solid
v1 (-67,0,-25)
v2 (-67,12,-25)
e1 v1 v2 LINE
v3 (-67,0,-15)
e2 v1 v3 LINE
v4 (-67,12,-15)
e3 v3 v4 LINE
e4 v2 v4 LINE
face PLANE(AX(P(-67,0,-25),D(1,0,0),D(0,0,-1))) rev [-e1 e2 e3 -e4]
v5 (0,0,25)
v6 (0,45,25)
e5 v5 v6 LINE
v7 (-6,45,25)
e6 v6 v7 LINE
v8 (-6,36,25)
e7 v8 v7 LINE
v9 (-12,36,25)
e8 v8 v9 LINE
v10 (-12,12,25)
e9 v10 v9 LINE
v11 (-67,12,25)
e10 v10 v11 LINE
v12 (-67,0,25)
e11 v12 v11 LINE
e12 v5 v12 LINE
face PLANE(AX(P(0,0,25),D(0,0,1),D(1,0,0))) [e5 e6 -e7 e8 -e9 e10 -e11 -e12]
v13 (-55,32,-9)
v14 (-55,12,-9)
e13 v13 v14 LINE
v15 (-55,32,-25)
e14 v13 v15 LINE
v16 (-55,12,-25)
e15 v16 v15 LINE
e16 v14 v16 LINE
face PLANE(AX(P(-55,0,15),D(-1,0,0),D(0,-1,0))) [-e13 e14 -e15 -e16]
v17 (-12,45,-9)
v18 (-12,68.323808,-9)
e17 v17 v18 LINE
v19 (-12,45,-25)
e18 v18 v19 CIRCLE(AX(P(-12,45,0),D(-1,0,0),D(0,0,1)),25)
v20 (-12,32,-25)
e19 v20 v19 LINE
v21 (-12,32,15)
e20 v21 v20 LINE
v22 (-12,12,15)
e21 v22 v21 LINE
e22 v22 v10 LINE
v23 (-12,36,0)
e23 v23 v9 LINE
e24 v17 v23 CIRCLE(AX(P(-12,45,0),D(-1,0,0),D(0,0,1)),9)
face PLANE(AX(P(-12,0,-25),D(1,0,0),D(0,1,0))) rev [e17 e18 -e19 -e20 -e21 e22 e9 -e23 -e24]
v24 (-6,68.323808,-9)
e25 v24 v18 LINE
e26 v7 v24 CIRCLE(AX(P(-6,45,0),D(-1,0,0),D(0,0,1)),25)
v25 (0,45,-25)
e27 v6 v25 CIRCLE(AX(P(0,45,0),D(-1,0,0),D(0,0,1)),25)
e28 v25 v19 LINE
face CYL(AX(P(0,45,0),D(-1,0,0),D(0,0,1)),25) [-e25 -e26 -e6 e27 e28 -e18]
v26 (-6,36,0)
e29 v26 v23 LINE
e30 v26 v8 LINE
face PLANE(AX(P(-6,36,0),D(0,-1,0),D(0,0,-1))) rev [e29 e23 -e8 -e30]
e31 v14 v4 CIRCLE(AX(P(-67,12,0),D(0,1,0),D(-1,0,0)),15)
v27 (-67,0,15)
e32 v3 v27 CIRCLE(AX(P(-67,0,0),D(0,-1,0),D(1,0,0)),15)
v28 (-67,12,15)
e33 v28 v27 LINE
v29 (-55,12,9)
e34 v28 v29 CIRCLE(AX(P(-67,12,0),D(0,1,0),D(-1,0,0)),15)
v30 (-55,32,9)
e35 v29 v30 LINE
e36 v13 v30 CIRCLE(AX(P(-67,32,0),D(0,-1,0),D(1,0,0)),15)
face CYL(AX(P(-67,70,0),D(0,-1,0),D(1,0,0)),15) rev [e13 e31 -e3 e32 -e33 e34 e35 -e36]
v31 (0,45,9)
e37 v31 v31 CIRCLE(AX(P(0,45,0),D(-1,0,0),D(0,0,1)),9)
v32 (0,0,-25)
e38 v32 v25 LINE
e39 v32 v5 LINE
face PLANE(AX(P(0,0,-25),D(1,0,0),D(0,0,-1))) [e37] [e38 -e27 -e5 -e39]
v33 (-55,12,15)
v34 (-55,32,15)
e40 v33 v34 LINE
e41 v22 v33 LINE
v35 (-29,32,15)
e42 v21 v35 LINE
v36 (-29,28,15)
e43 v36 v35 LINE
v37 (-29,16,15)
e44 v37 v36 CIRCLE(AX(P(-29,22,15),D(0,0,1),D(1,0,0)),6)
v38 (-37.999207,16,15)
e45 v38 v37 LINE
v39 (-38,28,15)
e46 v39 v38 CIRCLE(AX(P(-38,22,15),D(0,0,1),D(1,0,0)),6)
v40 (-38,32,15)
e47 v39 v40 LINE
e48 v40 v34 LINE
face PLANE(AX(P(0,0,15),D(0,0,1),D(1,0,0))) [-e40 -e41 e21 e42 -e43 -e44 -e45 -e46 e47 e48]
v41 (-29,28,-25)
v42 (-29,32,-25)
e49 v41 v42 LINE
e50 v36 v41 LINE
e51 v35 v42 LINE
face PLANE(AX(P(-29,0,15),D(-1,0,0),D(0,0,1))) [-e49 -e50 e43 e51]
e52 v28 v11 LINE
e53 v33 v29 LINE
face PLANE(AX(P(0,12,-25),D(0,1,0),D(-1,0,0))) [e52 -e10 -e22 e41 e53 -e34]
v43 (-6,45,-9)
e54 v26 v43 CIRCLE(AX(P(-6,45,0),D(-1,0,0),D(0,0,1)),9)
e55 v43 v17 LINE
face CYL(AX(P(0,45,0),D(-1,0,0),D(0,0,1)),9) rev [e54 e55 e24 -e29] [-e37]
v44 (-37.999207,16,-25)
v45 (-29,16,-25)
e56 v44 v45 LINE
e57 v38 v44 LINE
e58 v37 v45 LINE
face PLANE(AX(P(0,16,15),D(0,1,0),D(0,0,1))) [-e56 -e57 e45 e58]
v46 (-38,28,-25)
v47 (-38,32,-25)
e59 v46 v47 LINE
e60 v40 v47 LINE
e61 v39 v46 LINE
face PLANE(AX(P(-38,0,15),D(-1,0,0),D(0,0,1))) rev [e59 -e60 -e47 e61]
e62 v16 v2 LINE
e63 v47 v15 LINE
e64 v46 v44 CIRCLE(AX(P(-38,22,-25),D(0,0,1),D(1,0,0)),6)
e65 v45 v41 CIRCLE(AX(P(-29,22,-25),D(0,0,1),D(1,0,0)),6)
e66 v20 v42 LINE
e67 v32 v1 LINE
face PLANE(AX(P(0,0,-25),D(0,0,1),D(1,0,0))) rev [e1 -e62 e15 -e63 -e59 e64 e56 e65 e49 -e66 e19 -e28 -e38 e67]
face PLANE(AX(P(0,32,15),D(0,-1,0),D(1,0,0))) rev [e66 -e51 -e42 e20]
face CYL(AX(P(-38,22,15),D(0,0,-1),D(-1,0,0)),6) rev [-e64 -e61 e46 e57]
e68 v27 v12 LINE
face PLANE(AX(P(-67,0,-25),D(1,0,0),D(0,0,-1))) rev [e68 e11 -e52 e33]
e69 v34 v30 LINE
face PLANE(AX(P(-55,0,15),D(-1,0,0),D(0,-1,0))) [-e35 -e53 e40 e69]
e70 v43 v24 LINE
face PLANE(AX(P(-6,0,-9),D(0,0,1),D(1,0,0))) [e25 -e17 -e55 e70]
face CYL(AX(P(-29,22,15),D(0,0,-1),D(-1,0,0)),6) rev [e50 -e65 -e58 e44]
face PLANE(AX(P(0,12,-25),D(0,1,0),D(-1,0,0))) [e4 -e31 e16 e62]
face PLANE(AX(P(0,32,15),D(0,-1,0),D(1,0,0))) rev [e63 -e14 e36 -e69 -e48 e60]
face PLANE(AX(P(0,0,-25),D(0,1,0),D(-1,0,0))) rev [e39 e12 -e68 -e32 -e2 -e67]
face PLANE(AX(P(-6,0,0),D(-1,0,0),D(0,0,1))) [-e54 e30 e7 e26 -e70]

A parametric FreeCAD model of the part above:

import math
import FreeCAD as App
import Part
import Sketcher
from FreeCAD import Vector

doc = App.newDocument("Part")
params = doc.addObject("Spreadsheet::Sheet", "Params")
for row, (alias, value) in enumerate([
    ("sketch1_width", "12 mm"),
    ("sketch1_width2", "55 mm"),
    ("sketch1_height", "70 mm"),
    ("pad1_length", "25 mm"),
    ("pad1_length2", "25 mm"),
    ("sketch2_radius", "6 mm"),
    ("sketch2_width", "43 mm"),
    ("sketch2_width2", "17 mm"),
    ("sketch2_height", "20 mm"),
    ("sketch2_height2", "4 mm"),
    ("pad2_length", "15 mm"),
    ("pad2_length2", "25 mm"),
    ("sketch3_diameter", "30 mm"),
    ("sketch4_radius", "25 mm"),
    ("sketch5_radius", "9 mm"),
    ("sketch6_radius", "9 mm"),
    ("sketch6_radius2", "25 mm"),
    ("pocket4_length", "6 mm"),
], start=1):
    params.set(f"A{row}", alias)
    params.set(f"B{row}", "=" + value)
    params.setAlias(f"B{row}", alias)

body = doc.addObject("PartDesign::Body", "Body")

# Sketch on XY plane
sketch1 = body.newObject("Sketcher::SketchObject", "Sketch")
sketch1.AttachmentSupport = (doc.getObject("XY_Plane"), [""])
sketch1.MapMode = "FlatFace"
sketch1.addGeometry(Part.LineSegment(Vector(0, 0, 0), Vector(0, 70, 0)), False)
sketch1.addGeometry(Part.LineSegment(Vector(0, 70, 0), Vector(-12, 70, 0)), False)
sketch1.addGeometry(Part.LineSegment(Vector(-12, 70, 0), Vector(-12, 12, 0)), False)
sketch1.addGeometry(Part.LineSegment(Vector(-12, 12, 0), Vector(-67, 12, 0)), False)
sketch1.addGeometry(Part.LineSegment(Vector(-67, 12, 0), Vector(-67, 0, 0)), False)
sketch1.addGeometry(Part.LineSegment(Vector(-67, 0, 0), Vector(0, 0, 0)), False)
sketch1.addConstraint(Sketcher.Constraint("Coincident", 0, 2, 1, 1))
sketch1.addConstraint(Sketcher.Constraint("Coincident", 1, 2, 2, 1))
sketch1.addConstraint(Sketcher.Constraint("Coincident", 2, 2, 3, 1))
sketch1.addConstraint(Sketcher.Constraint("Coincident", 3, 2, 4, 1))
sketch1.addConstraint(Sketcher.Constraint("Coincident", 4, 2, 5, 1))
sketch1.addConstraint(Sketcher.Constraint("Coincident", 5, 2, 0, 1))
sketch1.addConstraint(Sketcher.Constraint("Vertical", 0))
sketch1.addConstraint(Sketcher.Constraint("Horizontal", 1))
sketch1.addConstraint(Sketcher.Constraint("Vertical", 2))
sketch1.addConstraint(Sketcher.Constraint("Horizontal", 3))
sketch1.addConstraint(Sketcher.Constraint("Vertical", 4))
sketch1.addConstraint(Sketcher.Constraint("Horizontal", 5))
sketch1.addConstraint(Sketcher.Constraint("Coincident", 5, 2, -1, 1))
sketch1.addConstraint(Sketcher.Constraint("Equal", 1, 4))
sketch1.addConstraint(Sketcher.Constraint("DistanceX", 1, 2, 1, 1, 12.0))
sketch1.addConstraint(Sketcher.Constraint("DistanceX", 3, 2, 3, 1, 55.0))
sketch1.addConstraint(Sketcher.Constraint("DistanceY", 0, 1, 0, 2, 70.0))
sketch1.setExpression("Constraints[14]", "Params.sketch1_width")
sketch1.setExpression("Constraints[15]", "Params.sketch1_width2")
sketch1.setExpression("Constraints[16]", "Params.sketch1_height")
pad1 = body.newObject("PartDesign::Pad", "Pad")
pad1.Profile = sketch1
pad1.Type = "TwoLengths"
pad1.setExpression("Length", "Params.pad1_length")
pad1.setExpression("Length2", "Params.pad1_length2")

# Sketch on XY plane
sketch2 = body.newObject("Sketcher::SketchObject", "Sketch001")
sketch2.AttachmentSupport = (doc.getObject("XY_Plane"), [""])
sketch2.MapMode = "FlatFace"
sketch2.addGeometry(Part.LineSegment(Vector(-55, 32, 0), Vector(-55, 12, 0)), False)
sketch2.addGeometry(Part.LineSegment(Vector(-55, 12, 0), Vector(-12, 12, 0)), False)
sketch2.addGeometry(Part.LineSegment(Vector(-12, 12, 0), Vector(-12, 32, 0)), False)
sketch2.addGeometry(Part.LineSegment(Vector(-12, 32, 0), Vector(-29, 32, 0)), False)
sketch2.addGeometry(Part.LineSegment(Vector(-29, 32, 0), Vector(-29, 28, 0)), False)
sketch2.addGeometry(Part.ArcOfCircle(Part.Circle(Vector(-29, 22, 0), Vector(0, 0, 1), 6), math.radians(-90), math.radians(90)), False)
sketch2.addGeometry(Part.LineSegment(Vector(-29, 16, 0), Vector(-37.999207, 16, 0)), False)
sketch2.addGeometry(Part.ArcOfCircle(Part.Circle(Vector(-38, 22, 0), Vector(0, 0, 1), 6), math.radians(90), math.radians(270.007577)), False)
sketch2.addGeometry(Part.LineSegment(Vector(-38, 28, 0), Vector(-38, 32, 0)), False)
sketch2.addGeometry(Part.LineSegment(Vector(-38, 32, 0), Vector(-55, 32, 0)), False)
sketch2.addConstraint(Sketcher.Constraint("Coincident", 0, 2, 1, 1))
sketch2.addConstraint(Sketcher.Constraint("Coincident", 1, 2, 2, 1))
sketch2.addConstraint(Sketcher.Constraint("Coincident", 2, 2, 3, 1))
sketch2.addConstraint(Sketcher.Constraint("Coincident", 3, 2, 4, 1))
sketch2.addConstraint(Sketcher.Constraint("Coincident", 4, 2, 5, 2))
sketch2.addConstraint(Sketcher.Constraint("Tangent", 5, 1, 6, 1))
sketch2.addConstraint(Sketcher.Constraint("Coincident", 6, 2, 7, 2))
sketch2.addConstraint(Sketcher.Constraint("Coincident", 7, 1, 8, 1))
sketch2.addConstraint(Sketcher.Constraint("Coincident", 8, 2, 9, 1))
sketch2.addConstraint(Sketcher.Constraint("Coincident", 9, 2, 0, 1))
sketch2.addConstraint(Sketcher.Constraint("Vertical", 0))
sketch2.addConstraint(Sketcher.Constraint("Horizontal", 1))
sketch2.addConstraint(Sketcher.Constraint("Vertical", 2))
sketch2.addConstraint(Sketcher.Constraint("Horizontal", 3))
sketch2.addConstraint(Sketcher.Constraint("Vertical", 4))
sketch2.addConstraint(Sketcher.Constraint("Horizontal", 6))
sketch2.addConstraint(Sketcher.Constraint("Vertical", 8))
sketch2.addConstraint(Sketcher.Constraint("Horizontal", 9))
sketch2.addConstraint(Sketcher.Constraint("Equal", 5, 7))
sketch2.addConstraint(Sketcher.Constraint("Horizontal", 3, 2, 8, 2))
sketch2.addConstraint(Sketcher.Constraint("Vertical", 5, 3, 3, 2))
sketch2.addConstraint(Sketcher.Constraint("Equal", 3, 9))
sketch2.addConstraint(Sketcher.Constraint("Radius", 5, 6.0))
sketch2.addConstraint(Sketcher.Constraint("DistanceX", 1, 1, 1, 2, 43.0))
sketch2.addConstraint(Sketcher.Constraint("DistanceX", 3, 2, 3, 1, 17.0))
sketch2.addConstraint(Sketcher.Constraint("DistanceY", 0, 2, 0, 1, 20.0))
sketch2.addConstraint(Sketcher.Constraint("DistanceY", 4, 2, 4, 1, 4.0))
sketch2.addConstraint(Sketcher.Constraint("DistanceX", 5, 3, -1, 1, 29.0))
sketch2.addConstraint(Sketcher.Constraint("DistanceY", -1, 1, 5, 3, 22.0))
sketch2.addConstraint(Sketcher.Constraint("DistanceX", 7, 3, -1, 1, 38.0))
sketch2.addConstraint(Sketcher.Constraint("DistanceX", 6, 2, 6, 1, 8.999207))
sketch2.setExpression("Constraints[22]", "Params.sketch2_radius")
sketch2.setExpression("Constraints[23]", "Params.sketch2_width")
sketch2.setExpression("Constraints[24]", "Params.sketch2_width2")
sketch2.setExpression("Constraints[25]", "Params.sketch2_height")
sketch2.setExpression("Constraints[26]", "Params.sketch2_height2")
pad2 = body.newObject("PartDesign::Pad", "Pad001")
pad2.Profile = sketch2
pad2.Type = "TwoLengths"
pad2.setExpression("Length", "Params.pad2_length")
pad2.setExpression("Length2", "Params.pad2_length2")

# Sketch on XZ plane
sketch3 = body.newObject("Sketcher::SketchObject", "Sketch002")
sketch3.AttachmentSupport = (doc.getObject("XZ_Plane"), [""])
sketch3.MapMode = "FlatFace"
sketch3.addGeometry(Part.Circle(Vector(-67, 0, 0), Vector(0, 0, 1), 15), False)
sketch3.addConstraint(Sketcher.Constraint("PointOnObject", 0, 3, -1))
sketch3.addConstraint(Sketcher.Constraint("Diameter", 0, 30.0))
sketch3.addConstraint(Sketcher.Constraint("DistanceX", 0, 3, -1, 1, 67.0))
sketch3.setExpression("Constraints[1]", "Params.sketch3_diameter")
pocket1 = body.newObject("PartDesign::Pocket", "Pocket")
pocket1.Profile = sketch3
pocket1.Type = "ThroughAll"

# Sketch on YZ plane
sketch4 = body.newObject("Sketcher::SketchObject", "Sketch003")
sketch4.AttachmentSupport = (doc.getObject("YZ_Plane"), [""])
sketch4.MapMode = "FlatFace"
sketch4.AttachmentOffset = App.Placement(Vector(0, 0, -12), App.Rotation())
sketch4.addGeometry(Part.ArcOfCircle(Part.Circle(Vector(45, 0, 0), Vector(0, 0, 1), 25), math.radians(-90), math.radians(-21.100196)), False)
sketch4.addGeometry(Part.ArcOfCircle(Part.Circle(Vector(45, 0, 0), Vector(0, 0, 1), 25), math.radians(-21.100196), math.radians(0)), False)
sketch4.addGeometry(Part.LineSegment(Vector(70, 0, 0), Vector(70, -25, 0)), False)
sketch4.addGeometry(Part.LineSegment(Vector(70, -25, 0), Vector(45, -25, 0)), False)
sketch4.addGeometry(Part.LineSegment(Vector(70, 25, 0), Vector(70, 0, 0)), False)
sketch4.addGeometry(Part.ArcOfCircle(Part.Circle(Vector(45, 0, 0), Vector(0, 0, 1), 25), math.radians(0), math.radians(90)), False)
sketch4.addGeometry(Part.LineSegment(Vector(45, 25, 0), Vector(70, 25, 0)), False)
sketch4.addConstraint(Sketcher.Constraint("Tangent", 0, 2, 1, 1))
sketch4.addConstraint(Sketcher.Constraint("Tangent", 1, 2, 2, 1))
sketch4.addConstraint(Sketcher.Constraint("Coincident", 2, 2, 3, 1))
sketch4.addConstraint(Sketcher.Constraint("Tangent", 3, 2, 0, 1))
sketch4.addConstraint(Sketcher.Constraint("Tangent", 4, 2, 5, 1))
sketch4.addConstraint(Sketcher.Constraint("Tangent", 5, 2, 6, 1))
sketch4.addConstraint(Sketcher.Constraint("Coincident", 6, 2, 4, 1))
sketch4.addConstraint(Sketcher.Constraint("Vertical", 2))
sketch4.addConstraint(Sketcher.Constraint("Horizontal", 3))
sketch4.addConstraint(Sketcher.Constraint("Vertical", 4))
sketch4.addConstraint(Sketcher.Constraint("Horizontal", 6))
sketch4.addConstraint(Sketcher.Constraint("Coincident", 5, 3, 0, 3))
sketch4.addConstraint(Sketcher.Constraint("Coincident", 4, 2, 1, 2))
sketch4.addConstraint(Sketcher.Constraint("PointOnObject", 0, 3, -1))
sketch4.addConstraint(Sketcher.Constraint("Radius", 0, 25.0))
sketch4.addConstraint(Sketcher.Constraint("DistanceX", -1, 1, 0, 3, 45.0))
sketch4.addConstraint(Sketcher.Constraint("DistanceY", 0, 2, -1, 1, 9.0))
sketch4.setExpression("Constraints[14]", "Params.sketch4_radius")
pocket2 = body.newObject("PartDesign::Pocket", "Pocket001")
pocket2.Profile = sketch4
pocket2.Type = "ThroughAll"
pocket2.Reversed = True

# Sketch on YZ plane
sketch5 = body.newObject("Sketcher::SketchObject", "Sketch004")
sketch5.AttachmentSupport = (doc.getObject("YZ_Plane"), [""])
sketch5.MapMode = "FlatFace"
sketch5.AttachmentOffset = App.Placement(Vector(0, 0, -12), App.Rotation())
sketch5.addGeometry(Part.ArcOfCircle(Part.Circle(Vector(45, 0, 0), Vector(0, 0, 1), 9), math.radians(-90), math.radians(90)), False)
sketch5.addGeometry(Part.ArcOfCircle(Part.Circle(Vector(45, 0, 0), Vector(0, 0, 1), 9), math.radians(180), math.radians(270)), False)
sketch5.addGeometry(Part.ArcOfCircle(Part.Circle(Vector(45, 0, 0), Vector(0, 0, 1), 9), math.radians(90), math.radians(180)), False)
sketch5.addConstraint(Sketcher.Constraint("Tangent", 0, 1, 1, 2))
sketch5.addConstraint(Sketcher.Constraint("Tangent", 1, 1, 2, 2))
sketch5.addConstraint(Sketcher.Constraint("Tangent", 2, 1, 0, 2))
sketch5.addConstraint(Sketcher.Constraint("Symmetric", 0, 1, 2, 1, -1))
sketch5.addConstraint(Sketcher.Constraint("PointOnObject", 1, 1, -1))
sketch5.addConstraint(Sketcher.Constraint("Vertical", 2, 3, 0, 1))
sketch5.addConstraint(Sketcher.Constraint("Radius", 0, 9.0))
sketch5.addConstraint(Sketcher.Constraint("DistanceX", -1, 1, 0, 3, 45.0))
sketch5.setExpression("Constraints[6]", "Params.sketch5_radius")
pocket3 = body.newObject("PartDesign::Pocket", "Pocket002")
pocket3.Profile = sketch5
pocket3.Type = "ThroughAll"
pocket3.Reversed = True

# Sketch on YZ plane
sketch6 = body.newObject("Sketcher::SketchObject", "Sketch005")
sketch6.AttachmentSupport = (doc.getObject("YZ_Plane"), [""])
sketch6.MapMode = "FlatFace"
sketch6.AttachmentOffset = App.Placement(Vector(0, 0, -12), App.Rotation())
sketch6.addGeometry(Part.LineSegment(Vector(68.323808, -9, 0), Vector(45, -9, 0)), False)
sketch6.addGeometry(Part.ArcOfCircle(Part.Circle(Vector(45, 0, 0), Vector(0, 0, 1), 9), math.radians(-90), math.radians(180)), False)
sketch6.addGeometry(Part.LineSegment(Vector(36, 0, 0), Vector(36, 25, 0)), False)
sketch6.addGeometry(Part.LineSegment(Vector(36, 25, 0), Vector(45, 25, 0)), False)
sketch6.addGeometry(Part.ArcOfCircle(Part.Circle(Vector(45, 0, 0), Vector(0, 0, 1), 25), math.radians(-21.100196), math.radians(90)), False)
sketch6.addConstraint(Sketcher.Constraint("Tangent", 0, 2, 1, 1))
sketch6.addConstraint(Sketcher.Constraint("Tangent", 1, 2, 2, 1))
sketch6.addConstraint(Sketcher.Constraint("Coincident", 2, 2, 3, 1))
sketch6.addConstraint(Sketcher.Constraint("Tangent", 3, 2, 4, 2))
sketch6.addConstraint(Sketcher.Constraint("Coincident", 4, 1, 0, 1))
sketch6.addConstraint(Sketcher.Constraint("Horizontal", 0))
sketch6.addConstraint(Sketcher.Constraint("Vertical", 2))
sketch6.addConstraint(Sketcher.Constraint("Horizontal", 3))
sketch6.addConstraint(Sketcher.Constraint("Coincident", 4, 3, 1, 3))
sketch6.addConstraint(Sketcher.Constraint("PointOnObject", 1, 3, -1))
sketch6.addConstraint(Sketcher.Constraint("Radius", 1, 9.0))
sketch6.addConstraint(Sketcher.Constraint("Radius", 4, 25.0))
sketch6.addConstraint(Sketcher.Constraint("DistanceX", -1, 1, 1, 3, 45.0))
sketch6.setExpression("Constraints[10]", "Params.sketch6_radius")
sketch6.setExpression("Constraints[11]", "Params.sketch6_radius2")
pocket4 = body.newObject("PartDesign::Pocket", "Pocket003")
pocket4.Profile = sketch6
pocket4.setExpression("Length", "Params.pocket4_length")
pocket4.Reversed = True

doc.recompute()
